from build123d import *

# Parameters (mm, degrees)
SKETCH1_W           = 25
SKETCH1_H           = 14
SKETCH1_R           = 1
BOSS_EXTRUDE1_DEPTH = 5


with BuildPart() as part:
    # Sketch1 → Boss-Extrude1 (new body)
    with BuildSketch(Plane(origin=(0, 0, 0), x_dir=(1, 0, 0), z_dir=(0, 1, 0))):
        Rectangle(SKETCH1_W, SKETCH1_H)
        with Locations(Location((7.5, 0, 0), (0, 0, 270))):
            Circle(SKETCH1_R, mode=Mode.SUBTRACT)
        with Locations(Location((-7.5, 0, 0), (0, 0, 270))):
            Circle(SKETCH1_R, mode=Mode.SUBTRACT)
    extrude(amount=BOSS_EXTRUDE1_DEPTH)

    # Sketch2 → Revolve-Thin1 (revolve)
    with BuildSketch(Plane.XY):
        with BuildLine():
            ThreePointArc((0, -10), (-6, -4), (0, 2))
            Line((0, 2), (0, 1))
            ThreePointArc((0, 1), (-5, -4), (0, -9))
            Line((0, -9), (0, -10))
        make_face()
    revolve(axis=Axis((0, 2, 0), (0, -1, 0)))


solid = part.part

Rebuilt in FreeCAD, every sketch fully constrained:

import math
import FreeCAD as App
import Part
import Sketcher
Q = App.Units.Quantity

doc = App.newDocument("Part")
body = doc.addObject("PartDesign::Body", "Body")

# Sketch on XZ plane
sketch1 = doc.addObject("Sketcher::SketchObject", "Sketch")
body.addObject(sketch1)
sketch1.AttachmentSupport = (doc.XZ_Plane, [""])
sketch1.MapMode = "FlatFace"
sketch1.addGeometry([
    Part.LineSegment(App.Vector(-12.5, -7, 0), App.Vector(-12.5, 7, 0)),  # 0
    Part.LineSegment(App.Vector(-12.5, 7, 0), App.Vector(12.5, 7, 0)),  # 1
    Part.LineSegment(App.Vector(12.5, 7, 0), App.Vector(12.5, -7, 0)),  # 2
    Part.LineSegment(App.Vector(12.5, -7, 0), App.Vector(-12.5, -7, 0)),  # 3
    Part.Circle(App.Vector(-7.5, 0, 0), App.Vector(0, 0, 1), 1),  # 4
    Part.Circle(App.Vector(7.5, 0, 0), App.Vector(0, 0, 1), 1),  # 5
], False)
sketch1.addConstraint([
    Sketcher.Constraint("Coincident", 0, 2, 1, 1),
    Sketcher.Constraint("Coincident", 1, 2, 2, 1),
    Sketcher.Constraint("Coincident", 2, 2, 3, 1),
    Sketcher.Constraint("Coincident", 3, 2, 0, 1),
    Sketcher.Constraint("Vertical", 0),
    Sketcher.Constraint("Horizontal", 1),
    Sketcher.Constraint("Vertical", 2),
    Sketcher.Constraint("Horizontal", 3),
    Sketcher.Constraint("Equal", 4, 5),
    Sketcher.Constraint("Symmetric", 4, 3, 5, 3, -1, 1),
    Sketcher.Constraint("Symmetric", 0, 2, 2, 2, -1, 1),
    Sketcher.Constraint("PointOnObject", 4, 3, -1),
    Sketcher.Constraint("Diameter", 4, Q("2 mm")),
    Sketcher.Constraint("DistanceX", 1, 1, 1, 2, Q("25 mm")),
    Sketcher.Constraint("DistanceY", 0, 1, 0, 2, Q("14 mm")),
    Sketcher.Constraint("DistanceX", 4, 3, 5, 3, Q("15 mm")),
])
pad1 = doc.addObject("PartDesign::Pad", "Pad")
body.addObject(pad1)
pad1.Profile = sketch1
pad1.Length = 5
pad1.Reversed = True

# Sketch on XY plane
sketch2 = doc.addObject("Sketcher::SketchObject", "Sketch001")
body.addObject(sketch2)
sketch2.AttachmentSupport = (doc.XY_Plane, [""])
sketch2.MapMode = "FlatFace"
sketch2.addGeometry([
    Part.ArcOfCircle(Part.Circle(App.Vector(0, -4, 0), App.Vector(0, 0, 1), 6), math.radians(90), math.radians(270)),
    Part.LineSegment(App.Vector(0, -10, 0), App.Vector(0, -9, 0)),
    Part.ArcOfCircle(Part.Circle(App.Vector(0, -4, 0), App.Vector(0, 0, 1), 5), math.radians(90), math.radians(270)),
    Part.LineSegment(App.Vector(0, 1, 0), App.Vector(0, 2, 0)),
], False)
sketch2.addConstraint([
    Sketcher.Constraint("Coincident", 0, 2, 1, 1),
    Sketcher.Constraint("Coincident", 1, 2, 2, 2),
    Sketcher.Constraint("Coincident", 2, 1, 3, 1),
    Sketcher.Constraint("Coincident", 3, 2, 0, 1),
    Sketcher.Constraint("Vertical", 1),
    Sketcher.Constraint("Vertical", 3),
    Sketcher.Constraint("Coincident", 2, 3, 0, 3),
    Sketcher.Constraint("PointOnObject", 0, 3, -2),
    Sketcher.Constraint("PointOnObject", 0, 2, -2),
    Sketcher.Constraint("PointOnObject", 2, 1, -2),
    Sketcher.Constraint("Radius", 0, Q("6 mm")),
    Sketcher.Constraint("Radius", 2, Q("5 mm")),
    Sketcher.Constraint("DistanceY", 0, 3, -1, 1, Q("4 mm")),
])
revolution = doc.addObject("PartDesign::Revolution", "Revolution")
body.addObject(revolution)
revolution.Profile = sketch2
revolution.ReferenceAxis = (sketch2, ["V_Axis"])
revolution.Angle = 360

doc.recompute()
